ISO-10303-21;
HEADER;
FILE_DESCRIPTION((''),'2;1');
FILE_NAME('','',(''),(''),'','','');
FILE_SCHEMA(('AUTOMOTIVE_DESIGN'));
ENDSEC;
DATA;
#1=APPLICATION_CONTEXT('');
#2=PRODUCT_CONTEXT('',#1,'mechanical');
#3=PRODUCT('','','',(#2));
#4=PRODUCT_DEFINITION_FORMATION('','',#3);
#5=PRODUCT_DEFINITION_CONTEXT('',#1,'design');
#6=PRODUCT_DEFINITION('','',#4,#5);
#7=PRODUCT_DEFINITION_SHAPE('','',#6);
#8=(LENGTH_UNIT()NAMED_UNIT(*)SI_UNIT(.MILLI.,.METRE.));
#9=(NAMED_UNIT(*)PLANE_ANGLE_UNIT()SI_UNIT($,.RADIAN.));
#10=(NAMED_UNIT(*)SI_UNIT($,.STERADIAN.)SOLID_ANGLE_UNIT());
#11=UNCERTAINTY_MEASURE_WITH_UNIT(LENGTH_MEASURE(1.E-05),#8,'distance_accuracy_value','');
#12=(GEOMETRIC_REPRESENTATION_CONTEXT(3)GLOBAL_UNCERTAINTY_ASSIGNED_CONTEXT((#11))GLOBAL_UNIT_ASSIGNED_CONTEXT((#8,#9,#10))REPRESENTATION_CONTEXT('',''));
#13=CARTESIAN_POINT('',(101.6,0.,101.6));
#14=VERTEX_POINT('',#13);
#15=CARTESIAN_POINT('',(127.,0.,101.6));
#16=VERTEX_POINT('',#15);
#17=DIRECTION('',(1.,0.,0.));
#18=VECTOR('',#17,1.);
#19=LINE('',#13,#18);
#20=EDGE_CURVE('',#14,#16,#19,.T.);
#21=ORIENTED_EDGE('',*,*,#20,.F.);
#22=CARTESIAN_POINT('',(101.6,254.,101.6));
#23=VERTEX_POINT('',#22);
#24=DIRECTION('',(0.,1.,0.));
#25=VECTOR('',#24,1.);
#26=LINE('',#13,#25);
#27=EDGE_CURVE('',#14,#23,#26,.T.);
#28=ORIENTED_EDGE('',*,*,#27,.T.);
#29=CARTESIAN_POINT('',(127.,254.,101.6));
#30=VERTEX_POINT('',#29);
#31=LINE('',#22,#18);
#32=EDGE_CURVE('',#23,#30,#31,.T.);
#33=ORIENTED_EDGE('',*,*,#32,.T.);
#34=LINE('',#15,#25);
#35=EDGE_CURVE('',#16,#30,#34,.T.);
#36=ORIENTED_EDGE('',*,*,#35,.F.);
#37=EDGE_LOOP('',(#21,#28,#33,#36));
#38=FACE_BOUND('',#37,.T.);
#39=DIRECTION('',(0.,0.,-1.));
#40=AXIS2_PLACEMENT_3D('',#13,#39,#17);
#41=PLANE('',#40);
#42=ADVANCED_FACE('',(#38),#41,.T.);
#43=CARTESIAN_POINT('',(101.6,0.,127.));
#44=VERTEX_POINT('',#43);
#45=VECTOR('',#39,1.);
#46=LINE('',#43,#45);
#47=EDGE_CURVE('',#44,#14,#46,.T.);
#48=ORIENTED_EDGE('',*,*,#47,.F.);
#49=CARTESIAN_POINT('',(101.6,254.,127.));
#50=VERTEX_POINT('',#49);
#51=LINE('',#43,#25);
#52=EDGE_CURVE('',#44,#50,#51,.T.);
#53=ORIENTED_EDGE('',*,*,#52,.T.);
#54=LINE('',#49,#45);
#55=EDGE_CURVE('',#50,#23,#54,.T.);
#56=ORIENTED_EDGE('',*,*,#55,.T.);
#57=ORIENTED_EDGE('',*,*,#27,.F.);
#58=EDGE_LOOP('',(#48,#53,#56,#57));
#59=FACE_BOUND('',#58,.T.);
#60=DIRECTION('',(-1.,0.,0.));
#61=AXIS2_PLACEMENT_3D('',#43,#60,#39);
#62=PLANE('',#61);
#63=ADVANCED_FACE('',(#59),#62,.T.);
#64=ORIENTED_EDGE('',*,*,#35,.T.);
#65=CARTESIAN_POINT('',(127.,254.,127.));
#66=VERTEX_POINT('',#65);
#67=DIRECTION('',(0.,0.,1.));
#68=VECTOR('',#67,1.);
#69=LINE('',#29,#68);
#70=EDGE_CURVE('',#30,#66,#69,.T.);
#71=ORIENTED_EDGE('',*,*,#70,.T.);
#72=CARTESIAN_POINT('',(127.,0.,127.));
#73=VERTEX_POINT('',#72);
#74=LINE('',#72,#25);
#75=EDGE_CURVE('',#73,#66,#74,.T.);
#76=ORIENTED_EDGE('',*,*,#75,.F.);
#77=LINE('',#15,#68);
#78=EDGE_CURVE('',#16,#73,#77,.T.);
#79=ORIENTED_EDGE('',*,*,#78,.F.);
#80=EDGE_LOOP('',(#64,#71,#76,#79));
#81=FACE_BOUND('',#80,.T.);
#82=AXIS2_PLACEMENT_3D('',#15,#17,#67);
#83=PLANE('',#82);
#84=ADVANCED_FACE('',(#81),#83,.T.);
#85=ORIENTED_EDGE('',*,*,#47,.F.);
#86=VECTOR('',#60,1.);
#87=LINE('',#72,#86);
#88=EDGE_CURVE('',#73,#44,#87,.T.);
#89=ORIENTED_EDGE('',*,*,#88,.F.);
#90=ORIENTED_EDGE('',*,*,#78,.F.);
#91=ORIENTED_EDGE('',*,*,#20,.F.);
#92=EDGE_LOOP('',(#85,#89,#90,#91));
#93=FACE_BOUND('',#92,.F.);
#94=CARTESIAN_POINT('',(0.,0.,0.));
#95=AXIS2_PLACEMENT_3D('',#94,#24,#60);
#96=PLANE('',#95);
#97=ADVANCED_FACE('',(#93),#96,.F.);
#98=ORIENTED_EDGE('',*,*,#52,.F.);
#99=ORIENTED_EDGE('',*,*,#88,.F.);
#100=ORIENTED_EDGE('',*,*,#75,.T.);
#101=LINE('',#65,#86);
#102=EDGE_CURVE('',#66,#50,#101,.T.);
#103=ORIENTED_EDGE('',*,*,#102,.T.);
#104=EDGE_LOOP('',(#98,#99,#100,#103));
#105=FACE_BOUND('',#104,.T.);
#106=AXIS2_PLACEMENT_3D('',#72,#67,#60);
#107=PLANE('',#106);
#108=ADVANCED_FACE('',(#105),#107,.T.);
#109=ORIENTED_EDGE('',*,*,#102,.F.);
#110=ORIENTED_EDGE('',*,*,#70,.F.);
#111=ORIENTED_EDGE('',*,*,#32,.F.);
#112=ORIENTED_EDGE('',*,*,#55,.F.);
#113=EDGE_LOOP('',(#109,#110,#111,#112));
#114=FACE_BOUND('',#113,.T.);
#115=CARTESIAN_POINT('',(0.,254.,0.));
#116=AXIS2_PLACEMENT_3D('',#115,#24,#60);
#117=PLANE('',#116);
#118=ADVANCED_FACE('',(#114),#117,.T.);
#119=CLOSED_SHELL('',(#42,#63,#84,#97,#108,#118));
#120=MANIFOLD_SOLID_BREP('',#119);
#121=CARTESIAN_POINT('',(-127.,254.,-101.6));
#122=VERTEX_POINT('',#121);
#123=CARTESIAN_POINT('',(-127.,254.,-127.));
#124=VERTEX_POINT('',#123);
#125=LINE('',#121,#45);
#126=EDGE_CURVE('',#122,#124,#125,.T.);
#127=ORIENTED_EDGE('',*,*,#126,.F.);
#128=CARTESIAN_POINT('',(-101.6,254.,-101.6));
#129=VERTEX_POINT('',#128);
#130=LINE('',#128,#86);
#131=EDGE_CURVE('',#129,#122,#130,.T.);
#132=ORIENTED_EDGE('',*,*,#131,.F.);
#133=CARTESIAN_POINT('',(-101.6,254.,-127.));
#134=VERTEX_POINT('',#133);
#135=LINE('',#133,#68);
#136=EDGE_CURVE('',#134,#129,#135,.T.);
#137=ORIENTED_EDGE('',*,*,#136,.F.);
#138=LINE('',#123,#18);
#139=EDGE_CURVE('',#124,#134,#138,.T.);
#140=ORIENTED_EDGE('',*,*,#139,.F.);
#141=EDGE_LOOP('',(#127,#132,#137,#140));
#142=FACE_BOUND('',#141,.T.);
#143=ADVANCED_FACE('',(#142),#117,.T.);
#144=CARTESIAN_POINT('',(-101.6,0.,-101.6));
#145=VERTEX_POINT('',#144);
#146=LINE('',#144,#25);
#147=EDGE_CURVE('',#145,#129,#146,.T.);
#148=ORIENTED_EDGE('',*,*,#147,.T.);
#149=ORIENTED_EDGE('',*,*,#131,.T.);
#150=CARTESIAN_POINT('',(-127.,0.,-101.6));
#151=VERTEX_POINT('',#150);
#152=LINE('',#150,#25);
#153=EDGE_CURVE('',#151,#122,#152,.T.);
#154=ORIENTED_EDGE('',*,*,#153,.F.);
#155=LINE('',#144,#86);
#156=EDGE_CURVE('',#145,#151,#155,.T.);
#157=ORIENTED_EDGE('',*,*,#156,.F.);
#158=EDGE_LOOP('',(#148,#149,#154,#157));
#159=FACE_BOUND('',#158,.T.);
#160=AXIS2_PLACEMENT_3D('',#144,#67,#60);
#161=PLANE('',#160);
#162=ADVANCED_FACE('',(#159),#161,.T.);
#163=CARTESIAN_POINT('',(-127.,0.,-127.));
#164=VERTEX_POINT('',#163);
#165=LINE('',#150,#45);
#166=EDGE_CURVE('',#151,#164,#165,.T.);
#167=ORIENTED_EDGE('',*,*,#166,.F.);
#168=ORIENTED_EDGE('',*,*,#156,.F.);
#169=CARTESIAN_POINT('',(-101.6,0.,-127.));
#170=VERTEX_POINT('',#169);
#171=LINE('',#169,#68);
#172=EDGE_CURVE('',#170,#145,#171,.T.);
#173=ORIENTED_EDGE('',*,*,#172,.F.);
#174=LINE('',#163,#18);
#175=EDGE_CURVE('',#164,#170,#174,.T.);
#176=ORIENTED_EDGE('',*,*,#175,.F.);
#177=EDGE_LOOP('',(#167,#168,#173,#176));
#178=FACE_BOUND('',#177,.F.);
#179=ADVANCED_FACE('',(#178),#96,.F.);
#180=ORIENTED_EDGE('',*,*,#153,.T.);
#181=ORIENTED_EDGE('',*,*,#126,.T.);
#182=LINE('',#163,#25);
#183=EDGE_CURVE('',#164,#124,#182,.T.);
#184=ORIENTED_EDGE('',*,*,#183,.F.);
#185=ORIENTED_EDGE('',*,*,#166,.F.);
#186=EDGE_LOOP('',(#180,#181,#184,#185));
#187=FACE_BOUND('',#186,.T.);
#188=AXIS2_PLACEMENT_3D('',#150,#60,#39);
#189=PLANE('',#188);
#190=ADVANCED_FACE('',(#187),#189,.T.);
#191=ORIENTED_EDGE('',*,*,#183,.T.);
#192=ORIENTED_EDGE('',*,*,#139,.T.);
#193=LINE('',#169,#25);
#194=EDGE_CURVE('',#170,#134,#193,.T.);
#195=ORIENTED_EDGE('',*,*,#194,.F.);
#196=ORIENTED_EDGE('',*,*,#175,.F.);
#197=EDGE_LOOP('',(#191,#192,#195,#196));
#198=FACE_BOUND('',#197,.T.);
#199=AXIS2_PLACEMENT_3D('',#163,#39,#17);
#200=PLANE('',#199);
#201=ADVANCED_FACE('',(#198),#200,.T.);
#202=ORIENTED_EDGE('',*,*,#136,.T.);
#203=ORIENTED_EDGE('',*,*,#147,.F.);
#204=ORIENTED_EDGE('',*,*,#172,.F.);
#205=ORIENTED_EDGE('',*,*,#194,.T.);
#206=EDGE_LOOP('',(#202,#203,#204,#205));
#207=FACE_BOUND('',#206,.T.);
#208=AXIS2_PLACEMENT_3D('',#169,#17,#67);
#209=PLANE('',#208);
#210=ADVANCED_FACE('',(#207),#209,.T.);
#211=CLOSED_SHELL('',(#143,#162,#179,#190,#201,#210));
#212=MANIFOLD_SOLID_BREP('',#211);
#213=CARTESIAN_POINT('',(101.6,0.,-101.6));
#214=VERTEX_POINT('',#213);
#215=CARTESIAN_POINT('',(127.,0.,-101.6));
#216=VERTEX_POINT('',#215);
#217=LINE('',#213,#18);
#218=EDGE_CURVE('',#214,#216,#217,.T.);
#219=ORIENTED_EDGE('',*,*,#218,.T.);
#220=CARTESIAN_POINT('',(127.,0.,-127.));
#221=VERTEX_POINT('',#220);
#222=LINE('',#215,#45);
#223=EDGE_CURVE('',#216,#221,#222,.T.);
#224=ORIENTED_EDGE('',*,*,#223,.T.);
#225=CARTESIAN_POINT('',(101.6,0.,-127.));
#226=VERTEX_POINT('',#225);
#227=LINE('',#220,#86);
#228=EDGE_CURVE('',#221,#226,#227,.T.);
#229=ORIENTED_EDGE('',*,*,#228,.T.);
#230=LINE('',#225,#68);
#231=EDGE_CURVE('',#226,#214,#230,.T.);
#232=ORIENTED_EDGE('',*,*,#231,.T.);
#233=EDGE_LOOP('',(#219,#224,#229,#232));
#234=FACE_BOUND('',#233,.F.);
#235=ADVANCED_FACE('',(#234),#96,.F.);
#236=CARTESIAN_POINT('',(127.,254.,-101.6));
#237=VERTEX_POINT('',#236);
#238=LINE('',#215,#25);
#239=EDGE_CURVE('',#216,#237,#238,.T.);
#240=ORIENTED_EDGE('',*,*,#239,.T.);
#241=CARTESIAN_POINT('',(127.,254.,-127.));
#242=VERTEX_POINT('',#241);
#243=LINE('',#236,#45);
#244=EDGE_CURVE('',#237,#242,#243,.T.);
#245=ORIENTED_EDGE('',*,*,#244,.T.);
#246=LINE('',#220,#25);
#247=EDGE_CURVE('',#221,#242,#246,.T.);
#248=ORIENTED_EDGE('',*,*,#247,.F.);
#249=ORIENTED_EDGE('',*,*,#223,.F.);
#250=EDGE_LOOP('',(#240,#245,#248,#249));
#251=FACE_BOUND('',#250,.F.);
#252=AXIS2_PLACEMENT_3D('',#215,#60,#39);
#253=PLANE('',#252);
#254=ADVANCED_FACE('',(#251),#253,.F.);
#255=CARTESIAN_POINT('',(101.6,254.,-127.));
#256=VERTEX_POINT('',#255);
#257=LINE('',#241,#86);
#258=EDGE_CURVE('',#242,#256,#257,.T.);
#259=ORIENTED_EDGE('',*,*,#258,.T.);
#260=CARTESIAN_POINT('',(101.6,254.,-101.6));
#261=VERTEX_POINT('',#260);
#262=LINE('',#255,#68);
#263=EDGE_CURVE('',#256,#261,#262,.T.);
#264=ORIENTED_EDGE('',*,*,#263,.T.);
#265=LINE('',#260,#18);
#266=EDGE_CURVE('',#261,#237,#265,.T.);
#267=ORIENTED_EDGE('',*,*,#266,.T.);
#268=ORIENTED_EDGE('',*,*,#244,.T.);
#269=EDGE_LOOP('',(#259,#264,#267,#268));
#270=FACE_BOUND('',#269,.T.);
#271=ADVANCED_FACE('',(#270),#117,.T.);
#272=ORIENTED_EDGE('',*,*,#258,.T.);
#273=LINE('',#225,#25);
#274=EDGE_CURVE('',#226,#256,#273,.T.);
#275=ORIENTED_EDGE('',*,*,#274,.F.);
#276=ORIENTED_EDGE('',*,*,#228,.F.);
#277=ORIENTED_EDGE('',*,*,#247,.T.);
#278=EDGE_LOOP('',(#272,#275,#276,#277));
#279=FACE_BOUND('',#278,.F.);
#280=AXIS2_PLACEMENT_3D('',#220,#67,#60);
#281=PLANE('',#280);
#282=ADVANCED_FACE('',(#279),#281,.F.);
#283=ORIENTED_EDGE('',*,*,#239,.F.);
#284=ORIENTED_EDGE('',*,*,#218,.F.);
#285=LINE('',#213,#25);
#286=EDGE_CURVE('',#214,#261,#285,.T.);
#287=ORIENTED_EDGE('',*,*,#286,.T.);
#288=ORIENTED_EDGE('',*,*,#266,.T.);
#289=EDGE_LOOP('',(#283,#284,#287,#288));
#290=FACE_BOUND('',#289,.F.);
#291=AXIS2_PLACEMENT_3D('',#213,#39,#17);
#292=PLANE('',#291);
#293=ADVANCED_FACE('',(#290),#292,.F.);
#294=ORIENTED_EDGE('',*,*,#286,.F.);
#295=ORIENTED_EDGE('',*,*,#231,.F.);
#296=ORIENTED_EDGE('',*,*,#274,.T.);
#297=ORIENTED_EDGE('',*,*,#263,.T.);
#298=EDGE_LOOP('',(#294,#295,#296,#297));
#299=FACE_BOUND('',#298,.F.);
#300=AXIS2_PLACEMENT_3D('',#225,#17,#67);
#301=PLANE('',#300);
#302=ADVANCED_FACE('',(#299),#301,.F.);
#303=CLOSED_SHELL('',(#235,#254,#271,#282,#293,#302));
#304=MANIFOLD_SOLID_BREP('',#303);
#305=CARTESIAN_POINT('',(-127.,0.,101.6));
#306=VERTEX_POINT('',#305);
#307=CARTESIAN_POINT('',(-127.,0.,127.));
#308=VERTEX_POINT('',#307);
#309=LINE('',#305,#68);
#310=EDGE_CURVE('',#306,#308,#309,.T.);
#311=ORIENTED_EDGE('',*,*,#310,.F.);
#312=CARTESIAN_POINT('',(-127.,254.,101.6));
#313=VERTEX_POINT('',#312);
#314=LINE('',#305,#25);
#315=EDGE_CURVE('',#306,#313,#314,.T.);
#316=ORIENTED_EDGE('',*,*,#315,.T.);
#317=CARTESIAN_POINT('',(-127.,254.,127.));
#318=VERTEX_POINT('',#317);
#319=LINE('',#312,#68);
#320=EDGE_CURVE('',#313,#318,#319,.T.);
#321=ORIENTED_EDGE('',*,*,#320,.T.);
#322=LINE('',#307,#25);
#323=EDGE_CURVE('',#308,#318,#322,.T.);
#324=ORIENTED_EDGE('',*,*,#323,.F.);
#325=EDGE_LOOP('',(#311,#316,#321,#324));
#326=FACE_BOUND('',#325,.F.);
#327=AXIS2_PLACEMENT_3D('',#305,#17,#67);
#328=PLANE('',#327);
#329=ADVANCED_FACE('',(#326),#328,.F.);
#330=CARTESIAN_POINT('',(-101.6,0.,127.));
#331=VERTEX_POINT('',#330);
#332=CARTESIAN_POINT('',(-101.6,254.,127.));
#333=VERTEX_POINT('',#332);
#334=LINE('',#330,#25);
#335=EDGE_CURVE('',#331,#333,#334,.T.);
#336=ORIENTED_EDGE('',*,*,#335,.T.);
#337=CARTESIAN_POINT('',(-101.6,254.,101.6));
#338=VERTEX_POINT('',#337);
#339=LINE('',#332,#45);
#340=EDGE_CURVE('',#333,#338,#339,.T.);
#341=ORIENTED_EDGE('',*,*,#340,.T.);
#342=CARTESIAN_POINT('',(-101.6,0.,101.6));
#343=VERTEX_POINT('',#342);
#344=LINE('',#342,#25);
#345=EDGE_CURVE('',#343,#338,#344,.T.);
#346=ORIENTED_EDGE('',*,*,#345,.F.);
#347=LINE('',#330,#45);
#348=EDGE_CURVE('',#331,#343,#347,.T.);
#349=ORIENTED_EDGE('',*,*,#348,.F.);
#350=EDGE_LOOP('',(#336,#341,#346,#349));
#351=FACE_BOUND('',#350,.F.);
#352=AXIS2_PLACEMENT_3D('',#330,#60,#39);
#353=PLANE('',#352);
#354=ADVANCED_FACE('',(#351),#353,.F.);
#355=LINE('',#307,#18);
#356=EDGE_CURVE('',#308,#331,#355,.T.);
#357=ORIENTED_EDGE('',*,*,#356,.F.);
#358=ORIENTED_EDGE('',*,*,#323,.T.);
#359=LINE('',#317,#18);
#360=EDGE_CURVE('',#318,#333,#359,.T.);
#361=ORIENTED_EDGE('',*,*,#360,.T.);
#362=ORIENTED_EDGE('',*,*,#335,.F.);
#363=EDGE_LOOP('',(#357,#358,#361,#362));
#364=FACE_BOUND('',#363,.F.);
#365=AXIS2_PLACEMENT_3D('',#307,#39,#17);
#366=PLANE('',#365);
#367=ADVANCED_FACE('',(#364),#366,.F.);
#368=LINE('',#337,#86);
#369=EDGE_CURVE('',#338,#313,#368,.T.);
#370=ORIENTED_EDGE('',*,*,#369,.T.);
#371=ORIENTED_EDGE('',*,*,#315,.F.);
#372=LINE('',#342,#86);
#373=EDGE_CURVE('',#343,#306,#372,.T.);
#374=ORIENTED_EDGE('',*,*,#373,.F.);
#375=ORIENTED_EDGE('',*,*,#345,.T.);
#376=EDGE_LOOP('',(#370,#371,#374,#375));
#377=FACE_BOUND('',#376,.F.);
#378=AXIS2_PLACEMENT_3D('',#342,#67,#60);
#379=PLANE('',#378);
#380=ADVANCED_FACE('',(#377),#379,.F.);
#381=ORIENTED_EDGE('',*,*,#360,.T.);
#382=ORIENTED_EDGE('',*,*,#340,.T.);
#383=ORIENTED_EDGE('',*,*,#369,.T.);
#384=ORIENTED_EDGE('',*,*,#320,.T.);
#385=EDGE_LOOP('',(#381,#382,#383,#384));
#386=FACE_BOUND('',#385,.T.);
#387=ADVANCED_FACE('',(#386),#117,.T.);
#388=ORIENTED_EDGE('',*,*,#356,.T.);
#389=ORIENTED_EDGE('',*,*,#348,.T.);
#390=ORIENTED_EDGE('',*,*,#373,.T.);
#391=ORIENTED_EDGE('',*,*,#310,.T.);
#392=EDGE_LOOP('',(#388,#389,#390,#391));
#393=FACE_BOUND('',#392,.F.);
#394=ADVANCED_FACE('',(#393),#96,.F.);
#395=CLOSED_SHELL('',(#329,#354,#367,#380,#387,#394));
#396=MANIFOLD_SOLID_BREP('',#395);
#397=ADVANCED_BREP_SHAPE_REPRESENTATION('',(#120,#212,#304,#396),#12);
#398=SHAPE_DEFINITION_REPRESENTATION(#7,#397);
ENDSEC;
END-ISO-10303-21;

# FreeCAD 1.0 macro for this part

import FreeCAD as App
import Part
import Sketcher
from FreeCAD import Vector
Q = App.Units.Quantity


def add_polygon(sketch, points):
    """Adds a closed chain of lines whose ends are joined by coincident constraints."""
    first, n = sketch.GeometryCount, len(points)
    for a, b in zip(points, points[1:] + points[:1]):
        sketch.addGeometry(Part.LineSegment(App.Vector(*a, 0), App.Vector(*b, 0)), False)
    for i in range(n):
        sketch.addConstraint(Sketcher.Constraint("Coincident", first + i, 2, first + (i + 1) % n, 1))

doc = App.newDocument("Part")
params = doc.addObject("Spreadsheet::Sheet", "Params")
for row, (alias, value) in enumerate([
    ("sketch1_width", "1 in"),
    ("pad1_length", "10 in"),
], start=1):
    params.set(f"A{row}", alias)
    params.set(f"B{row}", "=" + value)
    params.setAlias(f"B{row}", alias)

body = doc.addObject("PartDesign::Body", "Body")
body.AllowCompound = True

# Sketch on XZ plane
sketch1 = body.newObject("Sketcher::SketchObject", "Sketch")
sketch1.AttachmentSupport = (doc.getObject("XZ_Plane"), [""])
sketch1.MapMode = "FlatFace"
add_polygon(sketch1, [(-127, 102), (-127, 127), (-102, 127), (-102, 102)])  # lines 0-3
add_polygon(sketch1, [(-102, -127), (-127, -127), (-127, -102), (-102, -102)])  # lines 4-7
add_polygon(sketch1, [(102, 127), (127, 127), (127, 102), (102, 102)])  # lines 8-11
add_polygon(sketch1, [(127, -102), (127, -127), (102, -127), (102, -102)])  # lines 12-15
sketch1.addConstraint([
    Sketcher.Constraint("Vertical", 0),
    Sketcher.Constraint("Horizontal", 1),
    Sketcher.Constraint("Vertical", 2),
    Sketcher.Constraint("Horizontal", 3),
    Sketcher.Constraint("Horizontal", 4),
    Sketcher.Constraint("Vertical", 5),
    Sketcher.Constraint("Horizontal", 6),
    Sketcher.Constraint("Vertical", 7),
    Sketcher.Constraint("Horizontal", 8),
    Sketcher.Constraint("Vertical", 9),
    Sketcher.Constraint("Horizontal", 10),
    Sketcher.Constraint("Vertical", 11),
    Sketcher.Constraint("Vertical", 12),
    Sketcher.Constraint("Horizontal", 13),
    Sketcher.Constraint("Vertical", 14),
    Sketcher.Constraint("Horizontal", 15),
    Sketcher.Constraint("Symmetric", 4, 2, 8, 2, -1, 1),
    Sketcher.Constraint("Symmetric", 6, 2, 10, 2, -1, 1),
    Sketcher.Constraint("Symmetric", 0, 2, 12, 2, -1, 1),
    Sketcher.Constraint("Symmetric", 2, 2, 14, 2, -1, 1),
    Sketcher.Constraint("Symmetric", 0, 2, 8, 2, -2),
    Sketcher.Constraint("Symmetric", 2, 2, 10, 2, -2),
    Sketcher.Constraint("Equal", 15, 0),
    Sketcher.Constraint("DistanceX", 1, 1, 1, 2, Q("1 in")),
    Sketcher.Constraint("DistanceX", 1, 2, -1, 1, Q("4 in")),
    Sketcher.Constraint("DistanceY", -1, 1, 2, 2, Q("4 in")),
])
sketch1.setExpression("Constraints[39]", "Params.sketch1_width")
pad1 = body.newObject("PartDesign::Pad", "Pad")
pad1.Profile = sketch1
pad1.setExpression("Length", "Params.pad1_length")
pad1.Reversed = True

doc.recompute()
